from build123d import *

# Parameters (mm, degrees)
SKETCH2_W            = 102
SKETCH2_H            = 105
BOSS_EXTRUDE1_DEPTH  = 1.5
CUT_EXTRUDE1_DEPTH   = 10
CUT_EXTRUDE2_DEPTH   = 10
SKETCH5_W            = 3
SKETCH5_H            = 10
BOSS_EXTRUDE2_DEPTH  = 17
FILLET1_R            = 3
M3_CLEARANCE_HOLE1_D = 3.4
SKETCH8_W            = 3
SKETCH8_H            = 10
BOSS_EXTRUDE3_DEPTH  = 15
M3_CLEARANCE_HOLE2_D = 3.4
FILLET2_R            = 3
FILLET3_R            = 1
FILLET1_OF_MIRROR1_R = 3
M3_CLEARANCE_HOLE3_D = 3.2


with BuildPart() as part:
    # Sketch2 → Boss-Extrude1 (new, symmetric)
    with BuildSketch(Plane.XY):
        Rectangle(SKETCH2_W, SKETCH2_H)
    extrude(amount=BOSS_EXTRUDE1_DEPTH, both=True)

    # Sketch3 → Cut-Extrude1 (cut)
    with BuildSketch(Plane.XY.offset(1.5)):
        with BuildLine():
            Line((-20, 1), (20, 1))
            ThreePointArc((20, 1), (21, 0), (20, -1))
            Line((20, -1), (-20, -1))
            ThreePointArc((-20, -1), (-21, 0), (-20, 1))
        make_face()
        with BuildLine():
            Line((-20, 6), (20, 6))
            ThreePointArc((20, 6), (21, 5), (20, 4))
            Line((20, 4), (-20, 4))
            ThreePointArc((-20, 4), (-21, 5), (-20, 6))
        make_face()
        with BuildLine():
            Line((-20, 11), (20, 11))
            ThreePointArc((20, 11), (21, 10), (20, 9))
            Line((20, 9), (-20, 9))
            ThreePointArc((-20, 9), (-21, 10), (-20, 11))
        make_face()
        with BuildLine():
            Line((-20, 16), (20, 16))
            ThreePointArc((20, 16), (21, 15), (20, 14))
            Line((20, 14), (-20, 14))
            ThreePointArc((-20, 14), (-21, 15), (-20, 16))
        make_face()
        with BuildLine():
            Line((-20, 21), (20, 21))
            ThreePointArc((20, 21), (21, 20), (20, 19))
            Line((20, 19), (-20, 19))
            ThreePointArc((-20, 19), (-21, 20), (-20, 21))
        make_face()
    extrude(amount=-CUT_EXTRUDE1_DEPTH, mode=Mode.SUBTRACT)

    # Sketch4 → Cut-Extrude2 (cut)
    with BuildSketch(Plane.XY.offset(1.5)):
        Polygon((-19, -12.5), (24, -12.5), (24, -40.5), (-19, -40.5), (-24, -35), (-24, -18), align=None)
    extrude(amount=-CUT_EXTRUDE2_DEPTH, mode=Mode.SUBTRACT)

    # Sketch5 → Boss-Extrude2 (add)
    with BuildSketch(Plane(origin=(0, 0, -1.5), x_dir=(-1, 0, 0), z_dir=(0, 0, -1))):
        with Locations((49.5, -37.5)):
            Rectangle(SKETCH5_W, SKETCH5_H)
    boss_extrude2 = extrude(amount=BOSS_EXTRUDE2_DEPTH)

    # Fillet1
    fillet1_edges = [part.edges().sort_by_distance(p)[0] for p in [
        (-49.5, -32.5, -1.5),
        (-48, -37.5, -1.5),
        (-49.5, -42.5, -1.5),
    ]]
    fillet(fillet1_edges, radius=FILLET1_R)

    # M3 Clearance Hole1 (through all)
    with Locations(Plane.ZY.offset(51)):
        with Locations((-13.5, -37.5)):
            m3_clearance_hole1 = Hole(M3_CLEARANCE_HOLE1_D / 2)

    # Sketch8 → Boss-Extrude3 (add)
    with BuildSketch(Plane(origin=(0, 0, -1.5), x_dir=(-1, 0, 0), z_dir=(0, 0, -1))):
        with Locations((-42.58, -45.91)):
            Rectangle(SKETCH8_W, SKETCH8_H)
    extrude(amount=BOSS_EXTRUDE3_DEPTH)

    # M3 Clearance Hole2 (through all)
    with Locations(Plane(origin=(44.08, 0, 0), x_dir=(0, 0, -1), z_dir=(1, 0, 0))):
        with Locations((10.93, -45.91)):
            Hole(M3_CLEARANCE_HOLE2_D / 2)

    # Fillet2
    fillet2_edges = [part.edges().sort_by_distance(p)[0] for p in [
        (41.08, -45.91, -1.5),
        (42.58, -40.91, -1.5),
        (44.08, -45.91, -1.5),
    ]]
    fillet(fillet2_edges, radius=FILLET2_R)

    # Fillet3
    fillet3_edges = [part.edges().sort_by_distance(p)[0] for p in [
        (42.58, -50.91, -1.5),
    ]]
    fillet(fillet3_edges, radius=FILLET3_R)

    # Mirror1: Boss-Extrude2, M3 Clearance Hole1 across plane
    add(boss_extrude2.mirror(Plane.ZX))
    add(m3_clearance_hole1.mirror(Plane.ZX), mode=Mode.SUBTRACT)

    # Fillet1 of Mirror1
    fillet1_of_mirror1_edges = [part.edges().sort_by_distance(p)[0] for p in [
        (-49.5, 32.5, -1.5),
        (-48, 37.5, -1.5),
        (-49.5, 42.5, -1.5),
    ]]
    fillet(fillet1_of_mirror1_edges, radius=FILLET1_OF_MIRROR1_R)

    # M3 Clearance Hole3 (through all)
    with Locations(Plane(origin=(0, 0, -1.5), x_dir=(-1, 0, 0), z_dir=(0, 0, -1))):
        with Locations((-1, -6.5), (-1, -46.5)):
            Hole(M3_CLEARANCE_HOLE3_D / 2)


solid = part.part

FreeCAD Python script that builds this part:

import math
import FreeCAD as App
import Part
import Sketcher

V = App.Vector


def edges_at(feature, points):
    """Names of the edges that pass closest to the given points."""
    edges = feature.Shape.Edges
    near = lambda p: min(range(len(edges)), key=lambda i: edges[i].distToShape(Part.Vertex(*p))[0])
    return sorted({f"Edge{near(p) + 1}" for p in points})


def add_polygon(sketch, points):
    """Adds a closed chain of lines whose ends are joined by coincident constraints."""
    first, n = sketch.GeometryCount, len(points)
    for a, b in zip(points, points[1:] + points[:1]):
        sketch.addGeometry(Part.LineSegment(App.Vector(*a, 0), App.Vector(*b, 0)), False)
    for i in range(n):
        sketch.addConstraint(Sketcher.Constraint("Coincident", first + i, 2, first + (i + 1) % n, 1))

doc = App.newDocument("Part")
body = doc.addObject("PartDesign::Body", "Body")

sketch1 = body.newObject("Sketcher::SketchObject", "Sketch")
sketch1.AttachmentSupport = (doc.getObject("XY_Plane"), [""])
sketch1.MapMode = "FlatFace"
add_polygon(sketch1, [(-51, 52), (-51, -52), (51, -52), (51, 52)])
sketch1.addConstraint([
    Sketcher.Constraint("Vertical", 0),
    Sketcher.Constraint("Horizontal", 1),
    Sketcher.Constraint("Vertical", 2),
    Sketcher.Constraint("Horizontal", 3),
    Sketcher.Constraint("Symmetric", 0, 2, 2, 2, -1, 1),
    Sketcher.Constraint("DistanceX", 1, 1, 1, 2, 102.0),
    Sketcher.Constraint("DistanceY", 0, 2, 0, 1, 105.0),
])
pad1 = body.newObject("PartDesign::Pad", "Pad")
pad1.Profile = sketch1
pad1.Length = 3
pad1.Midplane = True

sketch2 = body.newObject("Sketcher::SketchObject", "Sketch001")
sketch2.AttachmentSupport = (doc.getObject("XY_Plane"), [""])
sketch2.MapMode = "FlatFace"
sketch2.AttachmentOffset = App.Placement(V(0, 0, 1.5), App.Rotation())
sketch2.addGeometry([
    Part.LineSegment(V(20, 1, 0), V(-20, 1, 0)),
    Part.ArcOfCircle(Part.Circle(V(-20, 0, 0), V(0, 0, 1), 1), math.radians(90), math.radians(270)),
    Part.LineSegment(V(-20, -1, 0), V(20, -1, 0)),
    Part.ArcOfCircle(Part.Circle(V(20, 0, 0), V(0, 0, 1), 1), math.radians(-90), math.radians(90)),
    Part.LineSegment(V(20, 6, 0), V(-20, 6, 0)),
    Part.ArcOfCircle(Part.Circle(V(-20, 5, 0), V(0, 0, 1), 1), math.radians(90), math.radians(270)),
    Part.LineSegment(V(-20, 4, 0), V(20, 4, 0)),
    Part.ArcOfCircle(Part.Circle(V(20, 5, 0), V(0, 0, 1), 1), math.radians(-90), math.radians(90)),
    Part.LineSegment(V(20, 11, 0), V(-20, 11, 0)),
    Part.ArcOfCircle(Part.Circle(V(-20, 10, 0), V(0, 0, 1), 1), math.radians(90), math.radians(270)),
    Part.LineSegment(V(-20, 9, 0), V(20, 9, 0)),
    Part.ArcOfCircle(Part.Circle(V(20, 10, 0), V(0, 0, 1), 1), math.radians(-90), math.radians(90)),
    Part.LineSegment(V(20, 16, 0), V(-20, 16, 0)),
    Part.ArcOfCircle(Part.Circle(V(-20, 15, 0), V(0, 0, 1), 1), math.radians(90), math.radians(270)),
    Part.LineSegment(V(-20, 14, 0), V(20, 14, 0)),
    Part.ArcOfCircle(Part.Circle(V(20, 15, 0), V(0, 0, 1), 1), math.radians(-90), math.radians(90)),
    Part.LineSegment(V(20, 21, 0), V(-20, 21, 0)),
    Part.ArcOfCircle(Part.Circle(V(-20, 20, 0), V(0, 0, 1), 1), math.radians(90), math.radians(270)),
    Part.LineSegment(V(-20, 19, 0), V(20, 19, 0)),
    Part.ArcOfCircle(Part.Circle(V(20, 20, 0), V(0, 0, 1), 1), math.radians(-90), math.radians(90)),
], False)
sketch2.addConstraint([
    Sketcher.Constraint("Tangent", 0, 2, 1, 1),
    Sketcher.Constraint("Tangent", 1, 2, 2, 1),
    Sketcher.Constraint("Tangent", 2, 2, 3, 1),
    Sketcher.Constraint("Tangent", 3, 2, 0, 1),
    Sketcher.Constraint("Tangent", 4, 2, 5, 1),
    Sketcher.Constraint("Tangent", 5, 2, 6, 1),
    Sketcher.Constraint("Tangent", 6, 2, 7, 1),
    Sketcher.Constraint("Tangent", 7, 2, 4, 1),
    Sketcher.Constraint("Tangent", 8, 2, 9, 1),
    Sketcher.Constraint("Tangent", 9, 2, 10, 1),
    Sketcher.Constraint("Tangent", 10, 2, 11, 1),
    Sketcher.Constraint("Tangent", 11, 2, 8, 1),
    Sketcher.Constraint("Tangent", 12, 2, 13, 1),
    Sketcher.Constraint("Tangent", 13, 2, 14, 1),
    Sketcher.Constraint("Tangent", 14, 2, 15, 1),
    Sketcher.Constraint("Tangent", 15, 2, 12, 1),
    Sketcher.Constraint("Tangent", 16, 2, 17, 1),
    Sketcher.Constraint("Tangent", 17, 2, 18, 1),
    Sketcher.Constraint("Tangent", 18, 2, 19, 1),
    Sketcher.Constraint("Tangent", 19, 2, 16, 1),
    Sketcher.Constraint("Horizontal", 0),
    Sketcher.Constraint("Horizontal", 2),
    Sketcher.Constraint("Horizontal", 4),
    Sketcher.Constraint("Horizontal", 6),
    Sketcher.Constraint("Horizontal", 8),
    Sketcher.Constraint("Horizontal", 10),
    Sketcher.Constraint("Horizontal", 12),
    Sketcher.Constraint("Horizontal", 14),
    Sketcher.Constraint("Horizontal", 16),
    Sketcher.Constraint("Horizontal", 18),
    Sketcher.Constraint("Equal", 3, 5),
    Sketcher.Constraint("Equal", 7, 9),
    Sketcher.Constraint("Equal", 11, 13),
    Sketcher.Constraint("Equal", 15, 17),
    Sketcher.Constraint("Symmetric", 1, 3, 3, 3, -1, 1),
    Sketcher.Constraint("Vertical", 1, 3, 5, 3),
    Sketcher.Constraint("Vertical", 3, 3, 7, 3),
    Sketcher.Constraint("Vertical", 5, 3, 9, 3),
    Sketcher.Constraint("Vertical", 7, 3, 11, 3),
    Sketcher.Constraint("Vertical", 9, 3, 13, 3),
    Sketcher.Constraint("Vertical", 11, 3, 15, 3),
    Sketcher.Constraint("Vertical", 13, 3, 17, 3),
    Sketcher.Constraint("Vertical", 15, 3, 19, 3),
    Sketcher.Constraint("Radius", 1, 1.0),
    Sketcher.Constraint("DistanceX", 0, 2, 0, 1, 40.0),
    Sketcher.Constraint("DistanceY", -1, 1, 5, 3, 5.0),
    Sketcher.Constraint("DistanceY", -1, 1, 9, 3, 10.0),
    Sketcher.Constraint("DistanceY", -1, 1, 13, 3, 15.0),
    Sketcher.Constraint("DistanceY", -1, 1, 17, 3, 20.0),
])
pocket1 = body.newObject("PartDesign::Pocket", "Pocket")
pocket1.Profile = sketch2
pocket1.Length = 10

sketch3 = body.newObject("Sketcher::SketchObject", "Sketch002")
sketch3.AttachmentSupport = (doc.getObject("XY_Plane"), [""])
sketch3.MapMode = "FlatFace"
sketch3.AttachmentOffset = App.Placement(V(0, 0, 1.5), App.Rotation())
add_polygon(sketch3, [(24, -12), (-19, -12), (-24, -18), (-24, -35), (-19, -40), (24, -40)])
sketch3.addConstraint([
    Sketcher.Constraint("Horizontal", 0),
    Sketcher.Constraint("Vertical", 2),
    Sketcher.Constraint("Horizontal", 4),
    Sketcher.Constraint("Vertical", 5),
    Sketcher.Constraint("Vertical", 0, 2, 3, 2),
    Sketcher.Constraint("Equal", 1, 3),
    Sketcher.Constraint("DistanceX", 0, 2, 0, 1, 43.0),
    Sketcher.Constraint("DistanceY", 2, 2, 2, 1, 17.0),
    Sketcher.Constraint("DistanceY", 5, 1, 5, 2, 28.0),
    Sketcher.Constraint("DistanceX", 0, 2, -1, 1, 19.0),
    Sketcher.Constraint("DistanceX", 1, 2, -1, 1, 24.0),
    Sketcher.Constraint("DistanceY", 1, 2, -1, 1, 18.0),
])
pocket2 = body.newObject("PartDesign::Pocket", "Pocket001")
pocket2.Profile = sketch3
pocket2.Length = 10

sketch4 = body.newObject("Sketcher::SketchObject", "Sketch003")
sketch4.AttachmentSupport = (doc.getObject("XY_Plane"), [""])
sketch4.MapMode = "FlatFace"
sketch4.AttachmentOffset = App.Placement(V(0, 0, -1.5), App.Rotation())
add_polygon(sketch4, [(-48, -32.5), (-48, -42.5), (-51, -42.5), (-51, -32.5)])
sketch4.addConstraint([
    Sketcher.Constraint("Vertical", 0),
    Sketcher.Constraint("Horizontal", 1),
    Sketcher.Constraint("Vertical", 2),
    Sketcher.Constraint("Horizontal", 3),
    Sketcher.Constraint("DistanceX", 1, 2, 1, 1, 3.0),
    Sketcher.Constraint("DistanceY", 0, 2, 0, 1, 10.0),
    Sketcher.Constraint("DistanceX", 0, 2, -1, 1, 48.0),
    Sketcher.Constraint("DistanceY", 0, 2, -1, 1, 42.5),
])
pad2 = body.newObject("PartDesign::Pad", "Pad001")
pad2.Profile = sketch4
pad2.Length = 17
pad2.Reversed = True
doc.recompute()

fillet = body.newObject("PartDesign::Fillet", "Fillet")
fillet.Base = (pad2, edges_at(pad2, [(-49.5, -32.5, -1.5), (-48, -37.5, -1.5), (-49.5, -42.5, -1.5)]))
fillet.Radius = 3

sketch5 = body.newObject("Sketcher::SketchObject", "Sketch004")
sketch5.AttachmentSupport = (doc.getObject("YZ_Plane"), [""])
sketch5.MapMode = "FlatFace"
sketch5.AttachmentOffset = App.Placement(V(0, 0, -51), App.Rotation())
sketch5.addGeometry(Part.Circle(V(-37.5, -13.5, 0), V(0, 0, 1), 1.7), False)
sketch5.addConstraint([
    Sketcher.Constraint("Diameter", 0, 3.4),
    Sketcher.Constraint("DistanceX", 0, 3, -1, 1, 37.5),
    Sketcher.Constraint("DistanceY", 0, 3, -1, 1, 13.5),
])
doc.recompute()
hole = body.newObject("PartDesign::Hole", "Hole")
hole.Profile = sketch5
hole.ThreadType = "None"
hole.Diameter = 3.4
hole.DepthType = "ThroughAll"
hole.Reversed = True

sketch6 = body.newObject("Sketcher::SketchObject", "Sketch005")
sketch6.AttachmentSupport = (doc.getObject("XY_Plane"), [""])
sketch6.MapMode = "FlatFace"
sketch6.AttachmentOffset = App.Placement(V(0, 0, -1.5), App.Rotation())
add_polygon(sketch6, [(44.1, -40.9), (44.1, -50.9), (41.1, -50.9), (41.1, -40.9)])
sketch6.addConstraint([
    Sketcher.Constraint("Vertical", 0),
    Sketcher.Constraint("Horizontal", 1),
    Sketcher.Constraint("Vertical", 2),
    Sketcher.Constraint("Horizontal", 3),
    Sketcher.Constraint("DistanceX", 1, 2, 1, 1, 3.0),
    Sketcher.Constraint("DistanceY", 0, 2, 0, 1, 10.0),
    Sketcher.Constraint("DistanceX", -1, 1, 0, 2, 44.08),
    Sketcher.Constraint("DistanceY", 0, 2, -1, 1, 50.91),
])
pad3 = body.newObject("PartDesign::Pad", "Pad002")
pad3.Profile = sketch6
pad3.Length = 15
pad3.Reversed = True

sketch7 = body.newObject("Sketcher::SketchObject", "Sketch006")
sketch7.AttachmentSupport = (doc.getObject("YZ_Plane"), [""])
sketch7.MapMode = "FlatFace"
sketch7.AttachmentOffset = App.Placement(V(0, 0, 44.08), App.Rotation())
sketch7.addGeometry(Part.Circle(V(-45.9, -10.9, 0), V(0, 0, 1), 1.7), False)
sketch7.addConstraint([
    Sketcher.Constraint("Diameter", 0, 3.4),
    Sketcher.Constraint("DistanceX", 0, 3, -1, 1, 45.91),
    Sketcher.Constraint("DistanceY", 0, 3, -1, 1, 10.93),
])
doc.recompute()
hole2 = body.newObject("PartDesign::Hole", "Hole001")
hole2.Profile = sketch7
hole2.ThreadType = "None"
hole2.Diameter = 3.4
hole2.DepthType = "ThroughAll"
doc.recompute()

fillet2 = body.newObject("PartDesign::Fillet", "Fillet001")
fillet2.Base = (hole2, edges_at(hole2, [(41.08, -45.91, -1.5), (42.58, -40.91, -1.5), (44.08, -45.91, -1.5)]))
fillet2.Radius = 3
doc.recompute()

fillet3 = body.newObject("PartDesign::Fillet", "Fillet002")
fillet3.Base = (fillet2, edges_at(fillet2, [(42.58, -50.91, -1.5)]))
fillet3.Radius = 1
doc.recompute()

mirrored = body.newObject("PartDesign::Mirrored", "Mirrored")
mirrored.Originals = [pad2, hole]
mirrored.MirrorPlane = (doc.getObject("XZ_Plane"), [""])
body.Tip = mirrored
doc.recompute()

fillet4 = body.newObject("PartDesign::Fillet", "Fillet003")
fillet4.Base = (mirrored, edges_at(mirrored, [(-49.5, 32.5, -1.5), (-48, 37.5, -1.5), (-49.5, 42.5, -1.5)]))
fillet4.Radius = 3

sketch8 = body.newObject("Sketcher::SketchObject", "Sketch007")
sketch8.AttachmentSupport = (doc.getObject("XY_Plane"), [""])
sketch8.MapMode = "FlatFace"
sketch8.AttachmentOffset = App.Placement(V(0, 0, -1.5), App.Rotation())
sketch8.addGeometry([
    Part.Circle(V(1, -6.5, 0), V(0, 0, 1), 1.6),
    Part.Circle(V(1, -46.5, 0), V(0, 0, 1), 1.6),
], False)
sketch8.addConstraint([
    Sketcher.Constraint("Equal", 0, 1),
    Sketcher.Constraint("Vertical", 0, 3, 1, 3),
    Sketcher.Constraint("Diameter", 0, 3.2),
    Sketcher.Constraint("DistanceX", -1, 1, 0, 3, 1.0),
    Sketcher.Constraint("DistanceY", 1, 3, 0, 3, 40.0),
    Sketcher.Constraint("DistanceY", 0, 3, -1, 1, 6.5),
])
doc.recompute()
hole3 = body.newObject("PartDesign::Hole", "Hole002")
hole3.Profile = sketch8
hole3.ThreadType = "None"
hole3.Diameter = 3.2
hole3.DepthType = "ThroughAll"
hole3.Reversed = True

doc.recompute()
